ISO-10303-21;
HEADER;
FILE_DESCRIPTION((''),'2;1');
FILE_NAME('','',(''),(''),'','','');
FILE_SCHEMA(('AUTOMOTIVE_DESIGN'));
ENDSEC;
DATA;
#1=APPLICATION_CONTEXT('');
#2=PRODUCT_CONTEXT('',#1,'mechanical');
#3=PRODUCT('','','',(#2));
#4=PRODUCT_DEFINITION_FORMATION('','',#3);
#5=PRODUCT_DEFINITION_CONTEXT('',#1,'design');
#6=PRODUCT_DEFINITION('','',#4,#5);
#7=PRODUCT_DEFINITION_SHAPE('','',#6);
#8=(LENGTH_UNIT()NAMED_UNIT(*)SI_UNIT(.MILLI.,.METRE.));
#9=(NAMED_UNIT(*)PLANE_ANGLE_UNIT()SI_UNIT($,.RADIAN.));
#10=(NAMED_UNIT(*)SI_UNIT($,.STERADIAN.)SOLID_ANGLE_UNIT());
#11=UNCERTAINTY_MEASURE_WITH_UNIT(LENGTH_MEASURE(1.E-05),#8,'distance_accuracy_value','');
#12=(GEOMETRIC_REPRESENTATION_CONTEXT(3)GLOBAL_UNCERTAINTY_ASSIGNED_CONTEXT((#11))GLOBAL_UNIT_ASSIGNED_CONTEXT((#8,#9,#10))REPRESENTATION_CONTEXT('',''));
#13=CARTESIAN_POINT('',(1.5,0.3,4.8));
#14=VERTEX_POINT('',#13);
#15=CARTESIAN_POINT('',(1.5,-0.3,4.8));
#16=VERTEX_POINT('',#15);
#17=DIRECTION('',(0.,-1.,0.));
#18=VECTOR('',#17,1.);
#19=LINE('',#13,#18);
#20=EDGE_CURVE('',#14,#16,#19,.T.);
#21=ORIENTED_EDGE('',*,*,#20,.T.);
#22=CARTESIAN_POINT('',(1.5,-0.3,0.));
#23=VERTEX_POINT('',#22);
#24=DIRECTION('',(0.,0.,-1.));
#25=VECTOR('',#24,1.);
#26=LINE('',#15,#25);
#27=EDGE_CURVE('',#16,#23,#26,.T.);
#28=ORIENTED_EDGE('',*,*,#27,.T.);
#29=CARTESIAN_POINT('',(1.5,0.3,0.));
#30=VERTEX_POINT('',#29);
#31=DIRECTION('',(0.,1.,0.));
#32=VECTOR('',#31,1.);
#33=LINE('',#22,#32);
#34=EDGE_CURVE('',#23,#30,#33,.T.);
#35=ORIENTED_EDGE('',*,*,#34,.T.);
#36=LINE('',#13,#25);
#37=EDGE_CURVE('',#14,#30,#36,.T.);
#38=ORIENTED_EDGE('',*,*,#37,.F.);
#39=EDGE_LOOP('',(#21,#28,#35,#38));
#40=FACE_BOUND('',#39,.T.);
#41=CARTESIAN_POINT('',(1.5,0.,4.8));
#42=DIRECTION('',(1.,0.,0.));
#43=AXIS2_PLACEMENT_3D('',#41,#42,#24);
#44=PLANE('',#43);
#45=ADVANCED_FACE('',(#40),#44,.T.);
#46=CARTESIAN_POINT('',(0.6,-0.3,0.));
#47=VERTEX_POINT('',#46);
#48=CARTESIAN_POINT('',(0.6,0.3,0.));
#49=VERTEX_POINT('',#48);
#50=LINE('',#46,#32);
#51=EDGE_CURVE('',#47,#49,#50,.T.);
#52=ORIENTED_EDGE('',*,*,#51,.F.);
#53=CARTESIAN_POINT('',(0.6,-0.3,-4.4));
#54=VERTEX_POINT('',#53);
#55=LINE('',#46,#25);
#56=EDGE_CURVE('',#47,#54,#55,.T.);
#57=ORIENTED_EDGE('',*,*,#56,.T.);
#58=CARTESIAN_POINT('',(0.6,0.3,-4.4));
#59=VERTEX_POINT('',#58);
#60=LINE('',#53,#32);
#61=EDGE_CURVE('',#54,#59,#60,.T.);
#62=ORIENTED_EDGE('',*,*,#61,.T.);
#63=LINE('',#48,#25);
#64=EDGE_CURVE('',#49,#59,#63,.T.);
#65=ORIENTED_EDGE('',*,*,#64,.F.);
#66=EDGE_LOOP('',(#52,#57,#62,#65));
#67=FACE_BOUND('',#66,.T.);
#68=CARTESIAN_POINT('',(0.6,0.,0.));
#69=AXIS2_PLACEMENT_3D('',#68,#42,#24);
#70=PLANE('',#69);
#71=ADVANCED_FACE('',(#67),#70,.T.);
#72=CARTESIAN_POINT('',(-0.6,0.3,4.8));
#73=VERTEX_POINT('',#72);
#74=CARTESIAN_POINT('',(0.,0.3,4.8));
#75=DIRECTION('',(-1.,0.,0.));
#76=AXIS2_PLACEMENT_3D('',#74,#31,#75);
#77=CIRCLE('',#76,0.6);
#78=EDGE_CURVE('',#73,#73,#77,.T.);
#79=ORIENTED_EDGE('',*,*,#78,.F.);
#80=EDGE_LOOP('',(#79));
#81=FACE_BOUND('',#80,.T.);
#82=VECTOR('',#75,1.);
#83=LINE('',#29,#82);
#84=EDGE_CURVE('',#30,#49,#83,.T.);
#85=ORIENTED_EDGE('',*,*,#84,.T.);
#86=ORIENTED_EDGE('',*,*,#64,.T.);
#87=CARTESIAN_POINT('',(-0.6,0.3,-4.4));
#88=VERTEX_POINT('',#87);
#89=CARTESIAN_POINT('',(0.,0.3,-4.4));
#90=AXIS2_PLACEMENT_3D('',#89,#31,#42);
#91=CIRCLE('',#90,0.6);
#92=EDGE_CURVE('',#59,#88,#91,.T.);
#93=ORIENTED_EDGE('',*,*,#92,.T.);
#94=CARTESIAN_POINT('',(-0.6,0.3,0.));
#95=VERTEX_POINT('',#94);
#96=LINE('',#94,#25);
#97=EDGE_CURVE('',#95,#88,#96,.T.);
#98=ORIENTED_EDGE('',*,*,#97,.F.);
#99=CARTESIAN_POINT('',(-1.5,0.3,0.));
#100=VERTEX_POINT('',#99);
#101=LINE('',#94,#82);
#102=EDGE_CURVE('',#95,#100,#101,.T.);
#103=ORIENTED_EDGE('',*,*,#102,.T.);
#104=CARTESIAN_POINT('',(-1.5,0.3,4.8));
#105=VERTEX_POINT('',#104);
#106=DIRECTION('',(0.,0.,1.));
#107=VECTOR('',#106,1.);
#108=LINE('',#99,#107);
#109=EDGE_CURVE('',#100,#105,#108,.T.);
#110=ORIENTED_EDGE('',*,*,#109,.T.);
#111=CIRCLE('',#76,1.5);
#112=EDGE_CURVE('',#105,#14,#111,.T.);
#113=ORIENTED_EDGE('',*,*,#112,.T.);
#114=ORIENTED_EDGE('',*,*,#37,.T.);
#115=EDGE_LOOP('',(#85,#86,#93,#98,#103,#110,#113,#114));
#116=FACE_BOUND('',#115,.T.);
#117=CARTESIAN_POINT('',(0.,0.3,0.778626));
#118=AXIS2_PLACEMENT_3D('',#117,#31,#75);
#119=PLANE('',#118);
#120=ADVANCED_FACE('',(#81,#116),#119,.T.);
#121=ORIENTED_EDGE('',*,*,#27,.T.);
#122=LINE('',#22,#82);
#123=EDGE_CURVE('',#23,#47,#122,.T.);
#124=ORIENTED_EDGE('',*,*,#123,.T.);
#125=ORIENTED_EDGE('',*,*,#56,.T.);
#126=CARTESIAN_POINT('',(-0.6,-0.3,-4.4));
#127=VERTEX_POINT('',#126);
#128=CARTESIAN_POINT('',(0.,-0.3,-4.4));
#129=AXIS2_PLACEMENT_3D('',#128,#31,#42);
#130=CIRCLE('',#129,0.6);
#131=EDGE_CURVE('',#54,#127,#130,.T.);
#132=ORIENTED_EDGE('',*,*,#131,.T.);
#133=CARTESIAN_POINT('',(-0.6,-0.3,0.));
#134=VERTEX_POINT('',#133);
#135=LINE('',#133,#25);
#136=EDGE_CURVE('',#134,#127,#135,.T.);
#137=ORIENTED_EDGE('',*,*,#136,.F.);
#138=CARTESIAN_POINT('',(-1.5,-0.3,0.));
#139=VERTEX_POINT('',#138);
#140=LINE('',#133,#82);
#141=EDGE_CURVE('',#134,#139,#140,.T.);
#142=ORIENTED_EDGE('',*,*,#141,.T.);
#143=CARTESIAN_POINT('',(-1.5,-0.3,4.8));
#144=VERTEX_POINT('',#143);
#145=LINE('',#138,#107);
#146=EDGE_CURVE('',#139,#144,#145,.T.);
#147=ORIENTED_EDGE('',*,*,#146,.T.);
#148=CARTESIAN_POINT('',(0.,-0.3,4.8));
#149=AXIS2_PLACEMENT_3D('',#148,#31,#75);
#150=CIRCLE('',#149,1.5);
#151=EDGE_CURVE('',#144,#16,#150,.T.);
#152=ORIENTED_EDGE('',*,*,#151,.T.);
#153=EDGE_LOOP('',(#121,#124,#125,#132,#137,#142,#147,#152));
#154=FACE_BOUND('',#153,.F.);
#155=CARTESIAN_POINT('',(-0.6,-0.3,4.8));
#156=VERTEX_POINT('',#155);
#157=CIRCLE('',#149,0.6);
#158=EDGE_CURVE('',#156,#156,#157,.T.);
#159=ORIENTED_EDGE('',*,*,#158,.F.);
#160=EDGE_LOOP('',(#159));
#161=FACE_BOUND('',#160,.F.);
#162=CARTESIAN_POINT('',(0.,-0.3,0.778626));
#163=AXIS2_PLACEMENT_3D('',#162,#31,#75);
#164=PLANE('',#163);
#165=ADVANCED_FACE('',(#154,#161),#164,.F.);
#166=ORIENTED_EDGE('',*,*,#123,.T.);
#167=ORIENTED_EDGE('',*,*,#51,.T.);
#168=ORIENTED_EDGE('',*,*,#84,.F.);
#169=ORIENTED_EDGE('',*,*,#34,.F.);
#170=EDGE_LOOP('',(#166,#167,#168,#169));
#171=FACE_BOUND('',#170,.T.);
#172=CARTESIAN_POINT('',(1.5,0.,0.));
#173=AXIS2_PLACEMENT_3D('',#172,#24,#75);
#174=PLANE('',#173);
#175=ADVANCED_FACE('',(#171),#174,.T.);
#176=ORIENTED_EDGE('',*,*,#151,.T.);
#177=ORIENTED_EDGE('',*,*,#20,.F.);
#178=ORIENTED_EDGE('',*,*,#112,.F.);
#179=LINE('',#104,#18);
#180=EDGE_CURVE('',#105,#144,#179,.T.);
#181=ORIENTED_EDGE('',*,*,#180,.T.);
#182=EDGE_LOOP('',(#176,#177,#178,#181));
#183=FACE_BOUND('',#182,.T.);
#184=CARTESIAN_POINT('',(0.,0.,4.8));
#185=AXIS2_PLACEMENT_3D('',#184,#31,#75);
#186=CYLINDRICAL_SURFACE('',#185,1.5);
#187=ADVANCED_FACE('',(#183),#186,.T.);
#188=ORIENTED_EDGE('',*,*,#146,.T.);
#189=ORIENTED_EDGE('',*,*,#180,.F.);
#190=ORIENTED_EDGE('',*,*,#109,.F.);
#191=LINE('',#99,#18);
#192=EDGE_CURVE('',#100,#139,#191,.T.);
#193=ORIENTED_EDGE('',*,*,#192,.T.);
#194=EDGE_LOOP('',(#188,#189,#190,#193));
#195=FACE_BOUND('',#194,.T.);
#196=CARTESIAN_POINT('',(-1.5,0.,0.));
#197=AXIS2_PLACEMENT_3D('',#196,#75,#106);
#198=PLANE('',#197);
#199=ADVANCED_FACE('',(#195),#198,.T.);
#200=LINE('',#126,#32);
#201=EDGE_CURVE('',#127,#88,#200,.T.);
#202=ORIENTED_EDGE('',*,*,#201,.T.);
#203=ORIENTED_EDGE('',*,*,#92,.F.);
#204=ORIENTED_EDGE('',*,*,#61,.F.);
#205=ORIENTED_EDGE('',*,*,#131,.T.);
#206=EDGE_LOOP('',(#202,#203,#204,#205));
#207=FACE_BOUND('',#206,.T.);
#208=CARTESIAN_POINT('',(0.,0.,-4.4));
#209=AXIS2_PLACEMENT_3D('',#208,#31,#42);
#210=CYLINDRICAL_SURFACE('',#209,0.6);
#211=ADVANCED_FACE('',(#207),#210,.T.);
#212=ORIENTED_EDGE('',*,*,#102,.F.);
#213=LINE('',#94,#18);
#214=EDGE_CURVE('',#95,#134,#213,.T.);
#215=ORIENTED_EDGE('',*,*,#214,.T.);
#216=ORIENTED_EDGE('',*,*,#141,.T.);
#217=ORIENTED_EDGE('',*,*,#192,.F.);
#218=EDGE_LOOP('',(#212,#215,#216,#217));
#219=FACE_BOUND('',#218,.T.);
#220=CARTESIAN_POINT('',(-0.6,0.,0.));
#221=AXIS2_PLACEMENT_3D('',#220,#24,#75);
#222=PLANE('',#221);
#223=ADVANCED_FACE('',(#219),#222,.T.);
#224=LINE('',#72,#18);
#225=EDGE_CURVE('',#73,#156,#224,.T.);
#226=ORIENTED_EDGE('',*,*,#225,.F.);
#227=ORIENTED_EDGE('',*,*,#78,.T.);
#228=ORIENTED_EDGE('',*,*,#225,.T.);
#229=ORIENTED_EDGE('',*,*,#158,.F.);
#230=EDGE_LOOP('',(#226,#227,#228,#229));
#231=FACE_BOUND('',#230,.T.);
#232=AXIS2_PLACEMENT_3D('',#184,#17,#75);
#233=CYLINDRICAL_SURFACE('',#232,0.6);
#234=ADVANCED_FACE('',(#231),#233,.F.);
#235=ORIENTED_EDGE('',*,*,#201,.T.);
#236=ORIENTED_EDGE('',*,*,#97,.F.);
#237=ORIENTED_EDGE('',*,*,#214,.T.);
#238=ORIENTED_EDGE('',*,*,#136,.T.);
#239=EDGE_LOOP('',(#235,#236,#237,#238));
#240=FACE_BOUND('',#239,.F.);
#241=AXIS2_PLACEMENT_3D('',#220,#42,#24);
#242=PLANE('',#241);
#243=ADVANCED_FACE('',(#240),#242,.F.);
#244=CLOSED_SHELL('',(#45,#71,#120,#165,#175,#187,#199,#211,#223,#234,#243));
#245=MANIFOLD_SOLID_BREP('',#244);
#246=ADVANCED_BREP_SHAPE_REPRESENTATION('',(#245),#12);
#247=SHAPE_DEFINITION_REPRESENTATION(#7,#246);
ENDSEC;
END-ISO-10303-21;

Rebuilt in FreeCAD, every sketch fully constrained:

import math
import FreeCAD as App
import Part
import Sketcher
Q = App.Units.Quantity

doc = App.newDocument("Part")
params = doc.addObject("Spreadsheet::Sheet", "Params")
for row, (alias, value) in enumerate([
    ("sketch1_diameter", "1.2 mm"),
    ("sketch1_radius", "1.5 mm"),
    ("sketch1_height", "4.8 mm"),
    ("sketch1_height2", "4.4 mm"),
    ("pad1_length", "0.6 mm"),
], start=1):
    params.set(f"A{row}", alias)
    params.set(f"B{row}", "=" + value)
    params.setAlias(f"B{row}", alias)

body = doc.addObject("PartDesign::Body", "Body")

sketch1 = body.newObject("Sketcher::SketchObject", "Sketch")
sketch1.AttachmentSupport = (doc.getObject("XZ_Plane"), [""])
sketch1.MapMode = "FlatFace"
sketch1.addGeometry([
    Part.LineSegment(App.Vector(1.5, 4.8, 0), App.Vector(1.5, 0, 0)),
    Part.LineSegment(App.Vector(1.5, 0, 0), App.Vector(0.6, 0, 0)),
    Part.LineSegment(App.Vector(0.6, 0, 0), App.Vector(0.6, -4.4, 0)),
    Part.ArcOfCircle(Part.Circle(App.Vector(0, -4.4, 0), App.Vector(0, 0, 1), 0.6), math.radians(180), math.radians(360)),
    Part.LineSegment(App.Vector(-0.6, -4.4, 0), App.Vector(-0.6, 0, 0)),
    Part.LineSegment(App.Vector(-0.6, 0, 0), App.Vector(-1.5, 0, 0)),
    Part.LineSegment(App.Vector(-1.5, 0, 0), App.Vector(-1.5, 4.8, 0)),
    Part.ArcOfCircle(Part.Circle(App.Vector(0, 4.8, 0), App.Vector(0, 0, 1), 1.5), math.radians(0), math.radians(180)),
    Part.Circle(App.Vector(0, 4.8, 0), App.Vector(0, 0, 1), 0.6),
], False)
sketch1.addConstraint([
    Sketcher.Constraint("Coincident", 0, 2, 1, 1),
    Sketcher.Constraint("Coincident", 1, 2, 2, 1),
    Sketcher.Constraint("Tangent", 2, 2, 3, 2),
    Sketcher.Constraint("Tangent", 3, 1, 4, 1),
    Sketcher.Constraint("Coincident", 4, 2, 5, 1),
    Sketcher.Constraint("Coincident", 5, 2, 6, 1),
    Sketcher.Constraint("Tangent", 6, 2, 7, 2),
    Sketcher.Constraint("Tangent", 7, 1, 0, 1),
    Sketcher.Constraint("Vertical", 0),
    Sketcher.Constraint("Horizontal", 1),
    Sketcher.Constraint("Vertical", 2),
    Sketcher.Constraint("Vertical", 4),
    Sketcher.Constraint("Horizontal", 5),
    Sketcher.Constraint("Vertical", 6),
    Sketcher.Constraint("Coincident", 8, 3, 7, 3),
    Sketcher.Constraint("Equal", 3, 8),
    Sketcher.Constraint("Symmetric", 1, 2, 4, 2, -1, 1),
    Sketcher.Constraint("Symmetric", 0, 2, 5, 2, -2),
    Sketcher.Constraint("Diameter", 8, Q("1.2 mm")),
    Sketcher.Constraint("Radius", 7, Q("1.5 mm")),
    Sketcher.Constraint("DistanceY", 0, 2, 0, 1, Q("4.8 mm")),
    Sketcher.Constraint("DistanceY", 2, 2, 2, 1, Q("4.4 mm")),
])
sketch1.setExpression("Constraints[18]", "Params.sketch1_diameter")
sketch1.setExpression("Constraints[19]", "Params.sketch1_radius")
sketch1.setExpression("Constraints[20]", "Params.sketch1_height")
sketch1.setExpression("Constraints[21]", "Params.sketch1_height2")
pad1 = body.newObject("PartDesign::Pad", "Pad")
pad1.Profile = sketch1
pad1.setExpression("Length", "Params.pad1_length")
pad1.Midplane = True

doc.recompute()
